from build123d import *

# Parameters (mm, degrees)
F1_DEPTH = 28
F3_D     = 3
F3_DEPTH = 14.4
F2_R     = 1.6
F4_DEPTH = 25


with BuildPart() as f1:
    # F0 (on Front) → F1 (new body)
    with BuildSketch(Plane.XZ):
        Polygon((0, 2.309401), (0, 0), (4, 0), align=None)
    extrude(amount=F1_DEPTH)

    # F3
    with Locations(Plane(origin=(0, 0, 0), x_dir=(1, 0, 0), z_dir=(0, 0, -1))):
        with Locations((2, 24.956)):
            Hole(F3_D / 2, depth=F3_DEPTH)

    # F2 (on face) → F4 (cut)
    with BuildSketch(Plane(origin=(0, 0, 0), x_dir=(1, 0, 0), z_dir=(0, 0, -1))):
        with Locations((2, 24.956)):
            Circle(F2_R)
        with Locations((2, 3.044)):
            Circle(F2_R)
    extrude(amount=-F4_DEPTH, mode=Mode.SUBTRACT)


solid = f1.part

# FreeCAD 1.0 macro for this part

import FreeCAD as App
import Part
import Sketcher
from FreeCAD import Vector
Q = App.Units.Quantity

doc = App.newDocument("Part")
body = doc.addObject("PartDesign::Body", "Body")

sketch1 = body.newObject("Sketcher::SketchObject", "Sketch")
sketch1.AttachmentSupport = (doc.getObject("XZ_Plane"), [""])
sketch1.MapMode = "FlatFace"
sketch1.addGeometry([
    Part.LineSegment(Vector(0, 2.309401, 0), Vector(0, 0, 0)),
    Part.LineSegment(Vector(0, 0, 0), Vector(4, 0, 0)),
    Part.LineSegment(Vector(4, 0, 0), Vector(0, 2.309401, 0)),
], False)
sketch1.addConstraint([
    Sketcher.Constraint("Coincident", 0, 2, 1, 1),
    Sketcher.Constraint("Coincident", 1, 2, 2, 1),
    Sketcher.Constraint("Coincident", 2, 2, 0, 1),
    Sketcher.Constraint("Vertical", 0),
    Sketcher.Constraint("Horizontal", 1),
    Sketcher.Constraint("Coincident", 0, 2, -1, 1),
    Sketcher.Constraint("DistanceX", 1, 1, 1, 2, 4.0),
    Sketcher.Constraint("Angle", 2, Q("150.000001 deg")),
])
pad1 = body.newObject("PartDesign::Pad", "Pad")
pad1.Profile = sketch1
pad1.Length = 28

sketch2 = body.newObject("Sketcher::SketchObject", "Sketch001")
sketch2.AttachmentSupport = (doc.getObject("XY_Plane"), [""])
sketch2.MapMode = "FlatFace"
sketch2.addGeometry(Part.Circle(Vector(2, -24.956, 0), Vector(0, 0, 1), 1.5), False)
sketch2.addConstraint([
    Sketcher.Constraint("Diameter", 0, 3.0),
    Sketcher.Constraint("DistanceX", -1, 1, 0, 3, 2.0),
    Sketcher.Constraint("DistanceY", 0, 3, -1, 1, 24.956),
])
doc.recompute()
hole = body.newObject("PartDesign::Hole", "Hole")
hole.Profile = sketch2
hole.ThreadType = "None"
hole.Diameter = 3
hole.DepthType = "Dimension"
hole.Depth = 14.4
hole.DrillPoint = "Flat"
hole.Reversed = True

sketch3 = body.newObject("Sketcher::SketchObject", "Sketch002")
sketch3.AttachmentSupport = (doc.getObject("XY_Plane"), [""])
sketch3.MapMode = "FlatFace"
sketch3.addGeometry([
    Part.Circle(Vector(2, -24.956, 0), Vector(0, 0, 1), 1.6),
    Part.Circle(Vector(2, -3.044, 0), Vector(0, 0, 1), 1.6),
], False)
sketch3.addConstraint([
    Sketcher.Constraint("Equal", 0, 1),
    Sketcher.Constraint("Vertical", 0, 3, 1, 3),
    Sketcher.Constraint("Diameter", 0, 3.2),
    Sketcher.Constraint("DistanceX", -1, 1, 0, 3, 2.0),
    Sketcher.Constraint("DistanceY", 0, 3, -1, 1, 24.956),
    Sketcher.Constraint("DistanceY", 1, 3, -1, 1, 3.044),
])
pocket1 = body.newObject("PartDesign::Pocket", "Pocket")
pocket1.Profile = sketch3
pocket1.Length = 25
pocket1.Reversed = True

doc.recompute()
